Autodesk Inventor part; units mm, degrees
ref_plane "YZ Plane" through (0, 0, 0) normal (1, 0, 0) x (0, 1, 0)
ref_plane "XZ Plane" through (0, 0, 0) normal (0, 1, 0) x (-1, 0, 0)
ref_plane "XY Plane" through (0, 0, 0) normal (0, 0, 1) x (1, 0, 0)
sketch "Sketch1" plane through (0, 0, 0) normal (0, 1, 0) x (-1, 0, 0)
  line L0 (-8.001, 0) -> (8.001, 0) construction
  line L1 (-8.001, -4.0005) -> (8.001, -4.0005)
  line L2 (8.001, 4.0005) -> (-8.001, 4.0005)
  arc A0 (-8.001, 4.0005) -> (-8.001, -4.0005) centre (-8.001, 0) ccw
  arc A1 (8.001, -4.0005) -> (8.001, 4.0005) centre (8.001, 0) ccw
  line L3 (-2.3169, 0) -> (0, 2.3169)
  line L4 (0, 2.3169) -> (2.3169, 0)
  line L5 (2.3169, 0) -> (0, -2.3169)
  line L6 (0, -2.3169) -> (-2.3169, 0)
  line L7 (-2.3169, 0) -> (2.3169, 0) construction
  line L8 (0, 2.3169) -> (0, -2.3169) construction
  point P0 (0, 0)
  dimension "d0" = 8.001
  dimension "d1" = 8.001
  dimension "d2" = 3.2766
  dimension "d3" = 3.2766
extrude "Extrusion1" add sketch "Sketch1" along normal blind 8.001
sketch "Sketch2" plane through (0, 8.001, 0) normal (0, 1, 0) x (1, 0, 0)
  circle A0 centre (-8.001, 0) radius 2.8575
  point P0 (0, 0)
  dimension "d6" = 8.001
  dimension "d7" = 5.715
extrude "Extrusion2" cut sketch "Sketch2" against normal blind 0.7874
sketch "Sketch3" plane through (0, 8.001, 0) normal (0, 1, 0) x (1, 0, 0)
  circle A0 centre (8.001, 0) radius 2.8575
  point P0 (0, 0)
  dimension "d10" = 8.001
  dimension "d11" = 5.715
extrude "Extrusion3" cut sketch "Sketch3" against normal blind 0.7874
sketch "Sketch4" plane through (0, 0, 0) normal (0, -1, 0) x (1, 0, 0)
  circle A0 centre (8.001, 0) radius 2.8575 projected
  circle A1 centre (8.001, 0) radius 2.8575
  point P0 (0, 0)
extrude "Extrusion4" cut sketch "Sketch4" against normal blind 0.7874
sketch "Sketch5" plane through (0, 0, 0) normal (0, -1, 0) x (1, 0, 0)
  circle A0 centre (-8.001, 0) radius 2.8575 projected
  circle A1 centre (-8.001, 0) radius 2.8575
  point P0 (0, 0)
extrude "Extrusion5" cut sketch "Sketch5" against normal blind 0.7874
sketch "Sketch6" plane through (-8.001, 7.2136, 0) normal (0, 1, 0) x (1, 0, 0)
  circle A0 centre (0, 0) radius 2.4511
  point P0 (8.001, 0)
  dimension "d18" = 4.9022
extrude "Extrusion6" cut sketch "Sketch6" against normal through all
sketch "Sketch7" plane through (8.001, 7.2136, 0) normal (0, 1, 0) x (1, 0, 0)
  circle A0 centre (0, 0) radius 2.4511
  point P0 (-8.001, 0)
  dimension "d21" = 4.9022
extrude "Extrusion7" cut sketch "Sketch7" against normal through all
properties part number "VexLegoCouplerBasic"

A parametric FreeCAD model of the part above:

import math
import FreeCAD as App
import Part
import Sketcher
from FreeCAD import Vector
Q = App.Units.Quantity

doc = App.newDocument("Part")
body = doc.addObject("PartDesign::Body", "Body")

# Sketch on XZ plane
sketch1 = doc.addObject("Sketcher::SketchObject", "Sketch")
body.addObject(sketch1)
sketch1.AttachmentSupport = (doc.XZ_Plane, [""])
sketch1.MapMode = "FlatFace"
sketch1.addGeometry([
    Part.ArcOfCircle(Part.Circle(Vector(8, 0, 0), Vector(0, 0, 1), 4), math.radians(-90), math.radians(90)),  # 0
    Part.LineSegment(Vector(8, -4, 0), Vector(-8, -4, 0)),  # 1
    Part.ArcOfCircle(Part.Circle(Vector(-8, 0, 0), Vector(0, 0, 1), 4), math.radians(90), math.radians(270)),  # 2
    Part.LineSegment(Vector(-8, 4, 0), Vector(8, 4, 0)),  # 3
    Part.LineSegment(Vector(0, -2.3, 0), Vector(2.3, 0, 0)),  # 4
    Part.LineSegment(Vector(2.3, 0, 0), Vector(0, 2.3, 0)),  # 5
    Part.LineSegment(Vector(0, 2.3, 0), Vector(-2.3, 0, 0)),  # 6
    Part.LineSegment(Vector(-2.3, 0, 0), Vector(0, -2.3, 0)),  # 7
], False)
sketch1.addConstraint([
    Sketcher.Constraint("Tangent", 0, 1, 1, 1),
    Sketcher.Constraint("Tangent", 1, 2, 2, 2),
    Sketcher.Constraint("Tangent", 2, 1, 3, 1),
    Sketcher.Constraint("Tangent", 3, 2, 0, 2),
    Sketcher.Constraint("Coincident", 4, 2, 5, 1),
    Sketcher.Constraint("Coincident", 5, 2, 6, 1),
    Sketcher.Constraint("Coincident", 6, 2, 7, 1),
    Sketcher.Constraint("Coincident", 7, 2, 4, 1),
    Sketcher.Constraint("Horizontal", 1),
    Sketcher.Constraint("Horizontal", 3),
    Sketcher.Constraint("Symmetric", 0, 3, 2, 3, -1, 1),
    Sketcher.Constraint("Symmetric", 4, 2, 6, 2, -1, 1),
    Sketcher.Constraint("Symmetric", 5, 2, 7, 2, -1, 1),
    Sketcher.Constraint("PointOnObject", 4, 2, -1),
    Sketcher.Constraint("PointOnObject", 5, 2, -2),
    Sketcher.Constraint("Perpendicular", 4, 5),
    Sketcher.Constraint("Radius", 0, Q("0.1575 in")),
    Sketcher.Constraint("Distance", 4, Q("0.129 in")),
    Sketcher.Constraint("DistanceX", -1, 1, 0, 3, Q("0.315 in")),
])
pad1 = doc.addObject("PartDesign::Pad", "Pad")
body.addObject(pad1)
pad1.Profile = sketch1
pad1.Length = Q("0.315 in")
pad1.Reversed = True

# Sketch on XZ plane
sketch2 = doc.addObject("Sketcher::SketchObject", "Sketch001")
body.addObject(sketch2)
sketch2.AttachmentSupport = (doc.XZ_Plane, [""])
sketch2.MapMode = "FlatFace"
sketch2.AttachmentOffset = App.Placement(Vector(0, 0, -0.315 * 25.4), App.Rotation())
sketch2.addGeometry(Part.Circle(Vector(-8, 0, 0), Vector(0, 0, 1), 2.9), False)
sketch2.addConstraint([
    Sketcher.Constraint("PointOnObject", 0, 3, -1),
    Sketcher.Constraint("Diameter", 0, Q("0.225 in")),
    Sketcher.Constraint("DistanceX", 0, 3, -1, 1, Q("0.315 in")),
])
pocket1 = doc.addObject("PartDesign::Pocket", "Pocket")
body.addObject(pocket1)
pocket1.Profile = sketch2
pocket1.Length = Q("0.031 in")
pocket1.Reversed = True

# Sketch on XZ plane
sketch3 = doc.addObject("Sketcher::SketchObject", "Sketch002")
body.addObject(sketch3)
sketch3.AttachmentSupport = (doc.XZ_Plane, [""])
sketch3.MapMode = "FlatFace"
sketch3.AttachmentOffset = App.Placement(Vector(0, 0, -0.315 * 25.4), App.Rotation())
sketch3.addGeometry(Part.Circle(Vector(8, 0, 0), Vector(0, 0, 1), 2.9), False)
sketch3.addConstraint([
    Sketcher.Constraint("PointOnObject", 0, 3, -1),
    Sketcher.Constraint("Diameter", 0, Q("0.225 in")),
    Sketcher.Constraint("DistanceX", -1, 1, 0, 3, Q("0.315 in")),
])
pocket2 = doc.addObject("PartDesign::Pocket", "Pocket001")
body.addObject(pocket2)
pocket2.Profile = sketch3
pocket2.Length = Q("0.031 in")
pocket2.Reversed = True

# Sketch on XZ plane
sketch4 = doc.addObject("Sketcher::SketchObject", "Sketch003")
body.addObject(sketch4)
sketch4.AttachmentSupport = (doc.XZ_Plane, [""])
sketch4.MapMode = "FlatFace"
sketch4.addGeometry(Part.Circle(Vector(8, 0, 0), Vector(0, 0, 1), 2.9), False)
sketch4.addConstraint([
    Sketcher.Constraint("PointOnObject", 0, 3, -1),
    Sketcher.Constraint("Diameter", 0, Q("0.225 in")),
    Sketcher.Constraint("DistanceX", -1, 1, 0, 3, Q("0.315 in")),
])
pocket3 = doc.addObject("PartDesign::Pocket", "Pocket002")
body.addObject(pocket3)
pocket3.Profile = sketch4
pocket3.Length = Q("0.031 in")

# Sketch on XZ plane
sketch5 = doc.addObject("Sketcher::SketchObject", "Sketch004")
body.addObject(sketch5)
sketch5.AttachmentSupport = (doc.XZ_Plane, [""])
sketch5.MapMode = "FlatFace"
sketch5.addGeometry(Part.Circle(Vector(-8, 0, 0), Vector(0, 0, 1), 2.9), False)
sketch5.addConstraint([
    Sketcher.Constraint("PointOnObject", 0, 3, -1),
    Sketcher.Constraint("Diameter", 0, Q("0.225 in")),
    Sketcher.Constraint("DistanceX", 0, 3, -1, 1, Q("0.315 in")),
])
pocket4 = doc.addObject("PartDesign::Pocket", "Pocket003")
body.addObject(pocket4)
pocket4.Profile = sketch5
pocket4.Length = Q("0.031 in")

# Sketch on XZ plane
sketch6 = doc.addObject("Sketcher::SketchObject", "Sketch005")
body.addObject(sketch6)
sketch6.AttachmentSupport = (doc.XZ_Plane, [""])
sketch6.MapMode = "FlatFace"
sketch6.AttachmentOffset = App.Placement(Vector(0, 0, -0.284 * 25.4), App.Rotation())
sketch6.addGeometry(Part.Circle(Vector(-8, 0, 0), Vector(0, 0, 1), 2.5), False)
sketch6.addConstraint([
    Sketcher.Constraint("PointOnObject", 0, 3, -1),
    Sketcher.Constraint("Diameter", 0, Q("0.193 in")),
    Sketcher.Constraint("DistanceX", 0, 3, -1, 1, Q("0.315 in")),
])
pocket5 = doc.addObject("PartDesign::Pocket", "Pocket004")
body.addObject(pocket5)
pocket5.Profile = sketch6
pocket5.Type = "ThroughAll"
pocket5.Reversed = True

# Sketch on XZ plane
sketch7 = doc.addObject("Sketcher::SketchObject", "Sketch006")
body.addObject(sketch7)
sketch7.AttachmentSupport = (doc.XZ_Plane, [""])
sketch7.MapMode = "FlatFace"
sketch7.AttachmentOffset = App.Placement(Vector(0, 0, -0.284 * 25.4), App.Rotation())
sketch7.addGeometry(Part.Circle(Vector(8, 0, 0), Vector(0, 0, 1), 2.5), False)
sketch7.addConstraint([
    Sketcher.Constraint("PointOnObject", 0, 3, -1),
    Sketcher.Constraint("Diameter", 0, Q("0.193 in")),
    Sketcher.Constraint("DistanceX", -1, 1, 0, 3, Q("0.315 in")),
])
pocket6 = doc.addObject("PartDesign::Pocket", "Pocket005")
body.addObject(pocket6)
pocket6.Profile = sketch7
pocket6.Type = "ThroughAll"
pocket6.Reversed = True

doc.recompute()
